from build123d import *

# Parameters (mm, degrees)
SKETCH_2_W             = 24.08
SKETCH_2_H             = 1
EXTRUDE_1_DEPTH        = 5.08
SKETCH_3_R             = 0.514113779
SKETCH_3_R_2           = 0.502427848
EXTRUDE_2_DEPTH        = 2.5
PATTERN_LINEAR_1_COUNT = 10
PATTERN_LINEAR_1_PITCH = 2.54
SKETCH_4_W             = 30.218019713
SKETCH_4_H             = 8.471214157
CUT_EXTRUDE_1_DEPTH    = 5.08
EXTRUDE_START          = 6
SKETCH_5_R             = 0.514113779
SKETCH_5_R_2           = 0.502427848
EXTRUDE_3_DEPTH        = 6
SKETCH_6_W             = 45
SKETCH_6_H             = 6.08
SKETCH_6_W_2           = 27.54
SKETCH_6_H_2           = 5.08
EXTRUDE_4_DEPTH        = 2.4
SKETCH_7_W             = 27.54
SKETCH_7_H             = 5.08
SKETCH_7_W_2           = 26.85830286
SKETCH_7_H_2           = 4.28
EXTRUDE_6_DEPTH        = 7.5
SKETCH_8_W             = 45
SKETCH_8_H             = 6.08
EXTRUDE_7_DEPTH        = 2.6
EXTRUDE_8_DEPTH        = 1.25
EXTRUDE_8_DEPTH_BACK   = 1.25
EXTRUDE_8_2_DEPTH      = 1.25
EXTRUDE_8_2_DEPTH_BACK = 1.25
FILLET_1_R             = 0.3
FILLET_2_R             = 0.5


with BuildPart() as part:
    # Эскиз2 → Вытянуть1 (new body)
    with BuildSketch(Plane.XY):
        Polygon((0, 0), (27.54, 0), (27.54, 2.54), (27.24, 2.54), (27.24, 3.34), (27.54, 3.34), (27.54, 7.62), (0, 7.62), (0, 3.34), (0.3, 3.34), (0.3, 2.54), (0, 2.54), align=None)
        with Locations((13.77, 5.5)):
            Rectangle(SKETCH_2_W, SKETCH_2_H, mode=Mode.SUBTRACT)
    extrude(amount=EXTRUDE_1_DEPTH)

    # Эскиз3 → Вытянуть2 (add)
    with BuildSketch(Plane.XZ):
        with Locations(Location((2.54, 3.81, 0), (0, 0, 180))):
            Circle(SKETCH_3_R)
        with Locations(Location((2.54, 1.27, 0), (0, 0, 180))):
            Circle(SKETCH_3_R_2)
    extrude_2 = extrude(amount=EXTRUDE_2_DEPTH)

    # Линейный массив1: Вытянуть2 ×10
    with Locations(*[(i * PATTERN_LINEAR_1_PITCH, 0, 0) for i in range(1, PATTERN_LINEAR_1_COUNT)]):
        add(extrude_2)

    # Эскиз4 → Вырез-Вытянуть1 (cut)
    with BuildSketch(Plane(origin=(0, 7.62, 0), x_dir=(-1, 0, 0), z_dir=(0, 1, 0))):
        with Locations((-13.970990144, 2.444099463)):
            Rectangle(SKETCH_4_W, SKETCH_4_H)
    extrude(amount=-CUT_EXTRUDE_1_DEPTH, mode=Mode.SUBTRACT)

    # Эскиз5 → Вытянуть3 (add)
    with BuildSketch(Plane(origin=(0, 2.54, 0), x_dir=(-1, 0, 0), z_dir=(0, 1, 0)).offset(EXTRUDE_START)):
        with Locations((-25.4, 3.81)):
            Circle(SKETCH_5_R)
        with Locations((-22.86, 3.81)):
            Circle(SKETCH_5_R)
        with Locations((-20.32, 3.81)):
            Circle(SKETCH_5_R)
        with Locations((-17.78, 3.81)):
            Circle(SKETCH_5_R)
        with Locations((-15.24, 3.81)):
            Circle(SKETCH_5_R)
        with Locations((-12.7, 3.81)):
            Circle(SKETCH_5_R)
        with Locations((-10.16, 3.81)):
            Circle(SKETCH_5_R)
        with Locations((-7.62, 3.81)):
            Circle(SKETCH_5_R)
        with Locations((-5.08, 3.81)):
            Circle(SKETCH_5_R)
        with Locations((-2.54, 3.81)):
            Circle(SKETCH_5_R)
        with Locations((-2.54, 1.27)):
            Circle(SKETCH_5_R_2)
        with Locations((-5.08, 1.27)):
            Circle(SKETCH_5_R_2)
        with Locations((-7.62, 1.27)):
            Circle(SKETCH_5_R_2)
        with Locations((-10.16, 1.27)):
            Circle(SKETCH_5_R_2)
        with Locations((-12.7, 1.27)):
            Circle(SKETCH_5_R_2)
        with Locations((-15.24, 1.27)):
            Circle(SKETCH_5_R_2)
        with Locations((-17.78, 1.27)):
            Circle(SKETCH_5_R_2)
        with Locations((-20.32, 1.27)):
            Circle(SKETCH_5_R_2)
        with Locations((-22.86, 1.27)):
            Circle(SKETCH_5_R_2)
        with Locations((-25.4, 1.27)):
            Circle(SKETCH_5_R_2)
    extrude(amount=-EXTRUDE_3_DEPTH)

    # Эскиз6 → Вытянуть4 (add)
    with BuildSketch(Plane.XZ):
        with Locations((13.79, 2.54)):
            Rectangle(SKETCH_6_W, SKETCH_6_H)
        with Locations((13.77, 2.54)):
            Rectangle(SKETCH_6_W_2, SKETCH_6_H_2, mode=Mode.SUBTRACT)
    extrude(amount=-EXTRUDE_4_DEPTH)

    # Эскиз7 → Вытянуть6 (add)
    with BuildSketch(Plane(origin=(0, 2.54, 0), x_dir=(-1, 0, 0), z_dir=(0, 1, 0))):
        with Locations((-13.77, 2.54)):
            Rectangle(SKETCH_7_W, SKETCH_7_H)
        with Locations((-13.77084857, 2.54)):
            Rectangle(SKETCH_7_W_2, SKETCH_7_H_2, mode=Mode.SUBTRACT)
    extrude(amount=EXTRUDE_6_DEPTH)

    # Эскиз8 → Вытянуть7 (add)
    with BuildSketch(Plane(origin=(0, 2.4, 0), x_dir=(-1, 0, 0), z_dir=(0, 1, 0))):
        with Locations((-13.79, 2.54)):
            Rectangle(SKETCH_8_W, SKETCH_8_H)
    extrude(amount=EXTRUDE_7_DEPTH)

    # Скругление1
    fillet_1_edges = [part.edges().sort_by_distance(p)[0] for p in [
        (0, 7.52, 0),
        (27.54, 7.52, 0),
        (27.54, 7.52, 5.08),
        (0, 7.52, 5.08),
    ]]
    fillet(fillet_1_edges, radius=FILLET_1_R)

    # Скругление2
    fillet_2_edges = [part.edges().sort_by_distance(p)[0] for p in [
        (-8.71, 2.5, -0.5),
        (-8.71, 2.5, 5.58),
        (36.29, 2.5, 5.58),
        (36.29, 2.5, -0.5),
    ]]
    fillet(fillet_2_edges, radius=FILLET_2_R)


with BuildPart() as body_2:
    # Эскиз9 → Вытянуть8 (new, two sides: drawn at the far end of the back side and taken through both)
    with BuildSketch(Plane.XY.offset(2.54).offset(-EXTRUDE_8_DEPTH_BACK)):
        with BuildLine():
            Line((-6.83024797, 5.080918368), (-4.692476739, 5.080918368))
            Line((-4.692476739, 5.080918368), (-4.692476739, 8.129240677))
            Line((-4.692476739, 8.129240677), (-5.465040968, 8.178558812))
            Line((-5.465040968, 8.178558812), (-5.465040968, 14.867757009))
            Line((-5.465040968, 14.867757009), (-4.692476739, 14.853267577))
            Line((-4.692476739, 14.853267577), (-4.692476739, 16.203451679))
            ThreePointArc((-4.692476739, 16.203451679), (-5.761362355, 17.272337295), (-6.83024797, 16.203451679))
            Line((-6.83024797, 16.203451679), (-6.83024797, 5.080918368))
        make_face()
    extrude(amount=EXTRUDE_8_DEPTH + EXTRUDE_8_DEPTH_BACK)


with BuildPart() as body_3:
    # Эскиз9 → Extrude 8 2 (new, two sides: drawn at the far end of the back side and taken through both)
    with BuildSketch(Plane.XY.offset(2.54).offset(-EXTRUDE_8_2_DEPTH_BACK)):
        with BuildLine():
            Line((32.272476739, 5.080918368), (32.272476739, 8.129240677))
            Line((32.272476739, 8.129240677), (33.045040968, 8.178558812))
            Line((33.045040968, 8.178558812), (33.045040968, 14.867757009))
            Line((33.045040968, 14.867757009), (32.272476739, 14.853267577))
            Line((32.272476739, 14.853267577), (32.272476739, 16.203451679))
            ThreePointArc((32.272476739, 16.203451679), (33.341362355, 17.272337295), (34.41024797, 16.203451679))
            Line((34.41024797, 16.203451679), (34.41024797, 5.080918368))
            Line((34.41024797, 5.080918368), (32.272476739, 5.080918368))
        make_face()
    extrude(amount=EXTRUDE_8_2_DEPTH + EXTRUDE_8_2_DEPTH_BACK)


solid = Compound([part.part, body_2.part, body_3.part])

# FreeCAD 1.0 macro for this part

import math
import FreeCAD as App
import Part
import Sketcher

V = App.Vector


def edges_at(feature, points):
    """Names of the edges that pass closest to the given points."""
    edges = feature.Shape.Edges
    near = lambda p: min(range(len(edges)), key=lambda i: edges[i].distToShape(Part.Vertex(*p))[0])
    return sorted({f"Edge{near(p) + 1}" for p in points})

doc = App.newDocument("Part")
body = doc.addObject("PartDesign::Body", "Body")

# Sketch on XY plane
sketch1 = body.newObject("Sketcher::SketchObject", "Sketch")
sketch1.AttachmentSupport = (doc.getObject("XY_Plane"), [""])
sketch1.MapMode = "FlatFace"
sketch1.addGeometry(Part.LineSegment(V(0, 0, 0), V(27.54, 0, 0)), False)
sketch1.addGeometry(Part.LineSegment(V(27.54, 0, 0), V(27.54, 2.54, 0)), False)
sketch1.addGeometry(Part.LineSegment(V(27.54, 2.54, 0), V(27.24, 2.54, 0)), False)
sketch1.addGeometry(Part.LineSegment(V(27.24, 2.54, 0), V(27.24, 3.34, 0)), False)
sketch1.addGeometry(Part.LineSegment(V(27.24, 3.34, 0), V(27.54, 3.34, 0)), False)
sketch1.addGeometry(Part.LineSegment(V(27.54, 3.34, 0), V(27.54, 7.62, 0)), False)
sketch1.addGeometry(Part.LineSegment(V(27.54, 7.62, 0), V(0, 7.62, 0)), False)
sketch1.addGeometry(Part.LineSegment(V(0, 7.62, 0), V(0, 3.34, 0)), False)
sketch1.addGeometry(Part.LineSegment(V(0, 3.34, 0), V(0.3, 3.34, 0)), False)
sketch1.addGeometry(Part.LineSegment(V(0.3, 3.34, 0), V(0.3, 2.54, 0)), False)
sketch1.addGeometry(Part.LineSegment(V(0.3, 2.54, 0), V(0, 2.54, 0)), False)
sketch1.addGeometry(Part.LineSegment(V(0, 2.54, 0), V(0, 0, 0)), False)
sketch1.addGeometry(Part.LineSegment(V(25.81, 5, 0), V(1.73, 5, 0)), False)
sketch1.addGeometry(Part.LineSegment(V(1.73, 5, 0), V(1.73, 6, 0)), False)
sketch1.addGeometry(Part.LineSegment(V(1.73, 6, 0), V(25.81, 6, 0)), False)
sketch1.addGeometry(Part.LineSegment(V(25.81, 6, 0), V(25.81, 5, 0)), False)
sketch1.addConstraint(Sketcher.Constraint("Coincident", 0, 2, 1, 1))
sketch1.addConstraint(Sketcher.Constraint("Coincident", 1, 2, 2, 1))
sketch1.addConstraint(Sketcher.Constraint("Coincident", 2, 2, 3, 1))
sketch1.addConstraint(Sketcher.Constraint("Coincident", 3, 2, 4, 1))
sketch1.addConstraint(Sketcher.Constraint("Coincident", 4, 2, 5, 1))
sketch1.addConstraint(Sketcher.Constraint("Coincident", 5, 2, 6, 1))
sketch1.addConstraint(Sketcher.Constraint("Coincident", 6, 2, 7, 1))
sketch1.addConstraint(Sketcher.Constraint("Coincident", 7, 2, 8, 1))
sketch1.addConstraint(Sketcher.Constraint("Coincident", 8, 2, 9, 1))
sketch1.addConstraint(Sketcher.Constraint("Coincident", 9, 2, 10, 1))
sketch1.addConstraint(Sketcher.Constraint("Coincident", 10, 2, 11, 1))
sketch1.addConstraint(Sketcher.Constraint("Coincident", 11, 2, 0, 1))
sketch1.addConstraint(Sketcher.Constraint("Coincident", 12, 2, 13, 1))
sketch1.addConstraint(Sketcher.Constraint("Coincident", 13, 2, 14, 1))
sketch1.addConstraint(Sketcher.Constraint("Coincident", 14, 2, 15, 1))
sketch1.addConstraint(Sketcher.Constraint("Coincident", 15, 2, 12, 1))
sketch1.addConstraint(Sketcher.Constraint("Horizontal", 0))
sketch1.addConstraint(Sketcher.Constraint("Vertical", 1))
sketch1.addConstraint(Sketcher.Constraint("Horizontal", 2))
sketch1.addConstraint(Sketcher.Constraint("Vertical", 3))
sketch1.addConstraint(Sketcher.Constraint("Horizontal", 4))
sketch1.addConstraint(Sketcher.Constraint("Vertical", 5))
sketch1.addConstraint(Sketcher.Constraint("Horizontal", 6))
sketch1.addConstraint(Sketcher.Constraint("Vertical", 7))
sketch1.addConstraint(Sketcher.Constraint("Horizontal", 8))
sketch1.addConstraint(Sketcher.Constraint("Vertical", 9))
sketch1.addConstraint(Sketcher.Constraint("Horizontal", 10))
sketch1.addConstraint(Sketcher.Constraint("Vertical", 11))
sketch1.addConstraint(Sketcher.Constraint("Horizontal", 12))
sketch1.addConstraint(Sketcher.Constraint("Vertical", 13))
sketch1.addConstraint(Sketcher.Constraint("Horizontal", 14))
sketch1.addConstraint(Sketcher.Constraint("Vertical", 15))
sketch1.addConstraint(Sketcher.Constraint("Coincident", 11, 2, -1, 1))
sketch1.addConstraint(Sketcher.Constraint("PointOnObject", 6, 2, -2))
sketch1.addConstraint(Sketcher.Constraint("Horizontal", 4, 2, 7, 2))
sketch1.addConstraint(Sketcher.Constraint("Horizontal", 2, 2, 9, 2))
sketch1.addConstraint(Sketcher.Constraint("Vertical", 1, 2, 4, 2))
sketch1.addConstraint(Sketcher.Constraint("Equal", 4, 8))
sketch1.addConstraint(Sketcher.Constraint("DistanceY", 13, 1, 13, 2, 1.0))
sketch1.addConstraint(Sketcher.Constraint("DistanceX", 2, 2, 2, 1, 0.3))
sketch1.addConstraint(Sketcher.Constraint("DistanceY", 3, 1, 3, 2, 0.8))
sketch1.addConstraint(Sketcher.Constraint("DistanceY", -1, 1, 12, 2, 5.0))
sketch1.addConstraint(Sketcher.Constraint("DistanceX", 0, 1, 0, 2, 27.54))
sketch1.addConstraint(Sketcher.Constraint("DistanceX", 12, 2, 12, 1, 24.08))
sketch1.addConstraint(Sketcher.Constraint("DistanceY", 1, 1, 1, 2, 2.54))
sketch1.addConstraint(Sketcher.Constraint("DistanceY", 5, 1, 5, 2, 4.28))
sketch1.addConstraint(Sketcher.Constraint("DistanceX", -1, 1, 12, 2, 1.73))
pad1 = body.newObject("PartDesign::Pad", "Pad")
pad1.Profile = sketch1
pad1.Length = 5.08

# Sketch on XZ plane
sketch2 = body.newObject("Sketcher::SketchObject", "Sketch001")
sketch2.AttachmentSupport = (doc.getObject("XZ_Plane"), [""])
sketch2.MapMode = "FlatFace"
sketch2.addGeometry(Part.Circle(V(2.5, 3.8, 0), V(0, 0, 1), 0.5), False)
sketch2.addGeometry(Part.Circle(V(2.5, 1.3, 0), V(0, 0, 1), 0.5), False)
sketch2.addConstraint(Sketcher.Constraint("Vertical", 0, 3, 1, 3))
sketch2.addConstraint(Sketcher.Constraint("DistanceX", -1, 1, 0, 3, 2.54))
sketch2.addConstraint(Sketcher.Constraint("DistanceY", -1, 1, 0, 3, 3.81))
sketch2.addConstraint(Sketcher.Constraint("DistanceY", -1, 1, 1, 3, 1.27))
sketch2.addConstraint(Sketcher.Constraint("Diameter", 0, 1.028228))
sketch2.addConstraint(Sketcher.Constraint("Diameter", 1, 1.004856))
pad2 = body.newObject("PartDesign::Pad", "Pad001")
pad2.Profile = sketch2
pad2.Length = 2.5
doc.recompute()

linearpattern = body.newObject("PartDesign::LinearPattern", "LinearPattern")
linearpattern.Originals = [pad2]
linearpattern.Direction = (doc.getObject("X_Axis"), [""])
linearpattern.Mode = "offset"
linearpattern.Offset = 2.54
linearpattern.Occurrences = 10
body.Tip = linearpattern

# Sketch on XZ plane
sketch3 = body.newObject("Sketcher::SketchObject", "Sketch002")
sketch3.AttachmentSupport = (doc.getObject("XZ_Plane"), [""])
sketch3.MapMode = "FlatFace"
sketch3.AttachmentOffset = App.Placement(V(0, 0, -7.62), App.Rotation())
sketch3.addGeometry(Part.LineSegment(V(29, 7, 0), V(29, -2, 0)), False)
sketch3.addGeometry(Part.LineSegment(V(29, -2, 0), V(-1, -2, 0)), False)
sketch3.addGeometry(Part.LineSegment(V(-1, -2, 0), V(-1, 7, 0)), False)
sketch3.addGeometry(Part.LineSegment(V(-1, 7, 0), V(29, 7, 0)), False)
sketch3.addConstraint(Sketcher.Constraint("Coincident", 0, 2, 1, 1))
sketch3.addConstraint(Sketcher.Constraint("Coincident", 1, 2, 2, 1))
sketch3.addConstraint(Sketcher.Constraint("Coincident", 2, 2, 3, 1))
sketch3.addConstraint(Sketcher.Constraint("Coincident", 3, 2, 0, 1))
sketch3.addConstraint(Sketcher.Constraint("Vertical", 0))
sketch3.addConstraint(Sketcher.Constraint("Horizontal", 1))
sketch3.addConstraint(Sketcher.Constraint("Vertical", 2))
sketch3.addConstraint(Sketcher.Constraint("Horizontal", 3))
sketch3.addConstraint(Sketcher.Constraint("DistanceX", -1, 1, 0, 2, 29.08))
sketch3.addConstraint(Sketcher.Constraint("DistanceX", 1, 2, 1, 1, 30.21802))
sketch3.addConstraint(Sketcher.Constraint("DistanceY", 0, 2, 0, 1, 8.471214))
sketch3.addConstraint(Sketcher.Constraint("DistanceY", 0, 2, -1, 1, 1.791508))
pocket1 = body.newObject("PartDesign::Pocket", "Pocket")
pocket1.Profile = sketch3
pocket1.Length = 5.08
pocket1.Reversed = True

# Sketch on XZ plane
sketch4 = body.newObject("Sketcher::SketchObject", "Sketch003")
sketch4.AttachmentSupport = (doc.getObject("XZ_Plane"), [""])
sketch4.MapMode = "FlatFace"
sketch4.AttachmentOffset = App.Placement(V(0, 0, -8.54), App.Rotation())
sketch4.addGeometry(Part.Circle(V(25.4, 3.8, 0), V(0, 0, 1), 0.5), False)
sketch4.addGeometry(Part.Circle(V(22.9, 3.8, 0), V(0, 0, 1), 0.5), False)
sketch4.addGeometry(Part.Circle(V(20.3, 3.8, 0), V(0, 0, 1), 0.5), False)
sketch4.addGeometry(Part.Circle(V(17.8, 3.8, 0), V(0, 0, 1), 0.5), False)
sketch4.addGeometry(Part.Circle(V(15.2, 3.8, 0), V(0, 0, 1), 0.5), False)
sketch4.addGeometry(Part.Circle(V(12.7, 3.8, 0), V(0, 0, 1), 0.5), False)
sketch4.addGeometry(Part.Circle(V(10.2, 3.8, 0), V(0, 0, 1), 0.5), False)
sketch4.addGeometry(Part.Circle(V(7.6, 3.8, 0), V(0, 0, 1), 0.5), False)
sketch4.addGeometry(Part.Circle(V(5.1, 3.8, 0), V(0, 0, 1), 0.5), False)
sketch4.addGeometry(Part.Circle(V(2.5, 3.8, 0), V(0, 0, 1), 0.5), False)
sketch4.addGeometry(Part.Circle(V(2.5, 1.3, 0), V(0, 0, 1), 0.5), False)
sketch4.addGeometry(Part.Circle(V(5.1, 1.3, 0), V(0, 0, 1), 0.5), False)
sketch4.addGeometry(Part.Circle(V(7.6, 1.3, 0), V(0, 0, 1), 0.5), False)
sketch4.addGeometry(Part.Circle(V(10.2, 1.3, 0), V(0, 0, 1), 0.5), False)
sketch4.addGeometry(Part.Circle(V(12.7, 1.3, 0), V(0, 0, 1), 0.5), False)
sketch4.addGeometry(Part.Circle(V(15.2, 1.3, 0), V(0, 0, 1), 0.5), False)
sketch4.addGeometry(Part.Circle(V(17.8, 1.3, 0), V(0, 0, 1), 0.5), False)
sketch4.addGeometry(Part.Circle(V(20.3, 1.3, 0), V(0, 0, 1), 0.5), False)
sketch4.addGeometry(Part.Circle(V(22.9, 1.3, 0), V(0, 0, 1), 0.5), False)
sketch4.addGeometry(Part.Circle(V(25.4, 1.3, 0), V(0, 0, 1), 0.5), False)
sketch4.addConstraint(Sketcher.Constraint("Equal", 0, 1))
sketch4.addConstraint(Sketcher.Constraint("Equal", 1, 2))
sketch4.addConstraint(Sketcher.Constraint("Equal", 2, 3))
sketch4.addConstraint(Sketcher.Constraint("Equal", 3, 4))
sketch4.addConstraint(Sketcher.Constraint("Equal", 4, 5))
sketch4.addConstraint(Sketcher.Constraint("Equal", 5, 6))
sketch4.addConstraint(Sketcher.Constraint("Equal", 6, 7))
sketch4.addConstraint(Sketcher.Constraint("Equal", 7, 8))
sketch4.addConstraint(Sketcher.Constraint("Equal", 8, 9))
sketch4.addConstraint(Sketcher.Constraint("Equal", 10, 11))
sketch4.addConstraint(Sketcher.Constraint("Equal", 11, 12))
sketch4.addConstraint(Sketcher.Constraint("Equal", 12, 13))
sketch4.addConstraint(Sketcher.Constraint("Equal", 13, 14))
sketch4.addConstraint(Sketcher.Constraint("Equal", 14, 15))
sketch4.addConstraint(Sketcher.Constraint("Equal", 15, 16))
sketch4.addConstraint(Sketcher.Constraint("Equal", 16, 17))
sketch4.addConstraint(Sketcher.Constraint("Equal", 17, 18))
sketch4.addConstraint(Sketcher.Constraint("Equal", 18, 19))
sketch4.addConstraint(Sketcher.Constraint("Horizontal", 0, 3, 1, 3))
sketch4.addConstraint(Sketcher.Constraint("Horizontal", 1, 3, 2, 3))
sketch4.addConstraint(Sketcher.Constraint("Horizontal", 2, 3, 3, 3))
sketch4.addConstraint(Sketcher.Constraint("Horizontal", 3, 3, 4, 3))
sketch4.addConstraint(Sketcher.Constraint("Horizontal", 4, 3, 5, 3))
sketch4.addConstraint(Sketcher.Constraint("Horizontal", 5, 3, 6, 3))
sketch4.addConstraint(Sketcher.Constraint("Horizontal", 6, 3, 7, 3))
sketch4.addConstraint(Sketcher.Constraint("Horizontal", 7, 3, 8, 3))
sketch4.addConstraint(Sketcher.Constraint("Horizontal", 8, 3, 9, 3))
sketch4.addConstraint(Sketcher.Constraint("Horizontal", 10, 3, 11, 3))
sketch4.addConstraint(Sketcher.Constraint("Horizontal", 11, 3, 12, 3))
sketch4.addConstraint(Sketcher.Constraint("Horizontal", 12, 3, 13, 3))
sketch4.addConstraint(Sketcher.Constraint("Horizontal", 13, 3, 14, 3))
sketch4.addConstraint(Sketcher.Constraint("Horizontal", 14, 3, 15, 3))
sketch4.addConstraint(Sketcher.Constraint("Horizontal", 15, 3, 16, 3))
sketch4.addConstraint(Sketcher.Constraint("Horizontal", 16, 3, 17, 3))
sketch4.addConstraint(Sketcher.Constraint("Horizontal", 17, 3, 18, 3))
sketch4.addConstraint(Sketcher.Constraint("Horizontal", 18, 3, 19, 3))
sketch4.addConstraint(Sketcher.Constraint("Vertical", 9, 3, 10, 3))
sketch4.addConstraint(Sketcher.Constraint("Vertical", 8, 3, 11, 3))
sketch4.addConstraint(Sketcher.Constraint("Vertical", 7, 3, 12, 3))
sketch4.addConstraint(Sketcher.Constraint("Vertical", 6, 3, 13, 3))
sketch4.addConstraint(Sketcher.Constraint("Vertical", 5, 3, 14, 3))
sketch4.addConstraint(Sketcher.Constraint("Vertical", 4, 3, 15, 3))
sketch4.addConstraint(Sketcher.Constraint("Vertical", 3, 3, 16, 3))
sketch4.addConstraint(Sketcher.Constraint("Vertical", 2, 3, 17, 3))
sketch4.addConstraint(Sketcher.Constraint("Vertical", 1, 3, 18, 3))
sketch4.addConstraint(Sketcher.Constraint("Vertical", 0, 3, 19, 3))
sketch4.addConstraint(Sketcher.Constraint("DistanceX", -1, 1, 0, 3, 25.4))
sketch4.addConstraint(Sketcher.Constraint("DistanceX", -1, 1, 5, 3, 12.7))
sketch4.addConstraint(Sketcher.Constraint("DistanceX", 6, 3, 1, 3, 12.7))
sketch4.addConstraint(Sketcher.Constraint("DistanceX", 7, 3, 2, 3, 12.7))
sketch4.addConstraint(Sketcher.Constraint("DistanceX", 8, 3, 3, 3, 12.7))
sketch4.addConstraint(Sketcher.Constraint("DistanceX", 9, 3, 4, 3, 12.7))
sketch4.addConstraint(Sketcher.Constraint("DistanceY", -1, 1, 0, 3, 3.81))
sketch4.addConstraint(Sketcher.Constraint("DistanceX", -1, 1, 1, 3, 22.86))
sketch4.addConstraint(Sketcher.Constraint("DistanceX", -1, 1, 2, 3, 20.32))
sketch4.addConstraint(Sketcher.Constraint("DistanceX", -1, 1, 3, 3, 17.78))
sketch4.addConstraint(Sketcher.Constraint("DistanceX", -1, 1, 4, 3, 15.24))
sketch4.addConstraint(Sketcher.Constraint("DistanceY", -1, 1, 10, 3, 1.27))
sketch4.addConstraint(Sketcher.Constraint("Diameter", 0, 1.028228))
sketch4.addConstraint(Sketcher.Constraint("Diameter", 10, 1.004856))
pad3 = body.newObject("PartDesign::Pad", "Pad002")
pad3.Profile = sketch4
pad3.Length = 6

# Sketch on XZ plane
sketch5 = body.newObject("Sketcher::SketchObject", "Sketch004")
sketch5.AttachmentSupport = (doc.getObject("XZ_Plane"), [""])
sketch5.MapMode = "FlatFace"
sketch5.addGeometry(Part.LineSegment(V(-9, 6, 0), V(-9, 0, 0)), False)
sketch5.addGeometry(Part.LineSegment(V(-9, 0, 0), V(36, 0, 0)), False)
sketch5.addGeometry(Part.LineSegment(V(36, 0, 0), V(36, 6, 0)), False)
sketch5.addGeometry(Part.LineSegment(V(36, 6, 0), V(-9, 6, 0)), False)
sketch5.addGeometry(Part.LineSegment(V(28, 0, 0), V(0, 0, 0)), False)
sketch5.addGeometry(Part.LineSegment(V(0, 0, 0), V(0, 5, 0)), False)
sketch5.addGeometry(Part.LineSegment(V(0, 5, 0), V(28, 5, 0)), False)
sketch5.addGeometry(Part.LineSegment(V(28, 5, 0), V(28, 0, 0)), False)
sketch5.addConstraint(Sketcher.Constraint("Coincident", 0, 2, 1, 1))
sketch5.addConstraint(Sketcher.Constraint("Coincident", 1, 2, 2, 1))
sketch5.addConstraint(Sketcher.Constraint("Coincident", 2, 2, 3, 1))
sketch5.addConstraint(Sketcher.Constraint("Coincident", 3, 2, 0, 1))
sketch5.addConstraint(Sketcher.Constraint("Coincident", 4, 2, 5, 1))
sketch5.addConstraint(Sketcher.Constraint("Coincident", 5, 2, 6, 1))
sketch5.addConstraint(Sketcher.Constraint("Coincident", 6, 2, 7, 1))
sketch5.addConstraint(Sketcher.Constraint("Coincident", 7, 2, 4, 1))
sketch5.addConstraint(Sketcher.Constraint("Vertical", 0))
sketch5.addConstraint(Sketcher.Constraint("Horizontal", 1))
sketch5.addConstraint(Sketcher.Constraint("Vertical", 2))
sketch5.addConstraint(Sketcher.Constraint("Horizontal", 3))
sketch5.addConstraint(Sketcher.Constraint("Horizontal", 4))
sketch5.addConstraint(Sketcher.Constraint("Vertical", 5))
sketch5.addConstraint(Sketcher.Constraint("Horizontal", 6))
sketch5.addConstraint(Sketcher.Constraint("Vertical", 7))
sketch5.addConstraint(Sketcher.Constraint("Coincident", 4, 2, -1, 1))
sketch5.addConstraint(Sketcher.Constraint("DistanceX", 1, 1, 1, 2, 45.0))
sketch5.addConstraint(Sketcher.Constraint("DistanceX", 4, 2, 4, 1, 27.54))
sketch5.addConstraint(Sketcher.Constraint("DistanceY", 0, 2, 0, 1, 6.08))
sketch5.addConstraint(Sketcher.Constraint("DistanceY", 5, 1, 5, 2, 5.08))
sketch5.addConstraint(Sketcher.Constraint("DistanceY", 0, 2, -1, 1, 0.5))
sketch5.addConstraint(Sketcher.Constraint("DistanceX", 0, 2, -1, 1, 8.71))
pad4 = body.newObject("PartDesign::Pad", "Pad003")
pad4.Profile = sketch5
pad4.Length = 2.4
pad4.Reversed = True

# Sketch on XZ plane
sketch6 = body.newObject("Sketcher::SketchObject", "Sketch005")
sketch6.AttachmentSupport = (doc.getObject("XZ_Plane"), [""])
sketch6.MapMode = "FlatFace"
sketch6.AttachmentOffset = App.Placement(V(0, 0, -2.54), App.Rotation())
sketch6.addGeometry(Part.LineSegment(V(27.5, 5.1, 0), V(27.5, 0, 0)), False)
sketch6.addGeometry(Part.LineSegment(V(27.5, 0, 0), V(0, 0, 0)), False)
sketch6.addGeometry(Part.LineSegment(V(0, 0, 0), V(0, 5.1, 0)), False)
sketch6.addGeometry(Part.LineSegment(V(0, 5.1, 0), V(27.5, 5.1, 0)), False)
sketch6.addGeometry(Part.LineSegment(V(0.3, 0.4, 0), V(27.2, 0.4, 0)), False)
sketch6.addGeometry(Part.LineSegment(V(27.2, 0.4, 0), V(27.2, 4.7, 0)), False)
sketch6.addGeometry(Part.LineSegment(V(27.2, 4.7, 0), V(0.3, 4.7, 0)), False)
sketch6.addGeometry(Part.LineSegment(V(0.3, 4.7, 0), V(0.3, 0.4, 0)), False)
sketch6.addConstraint(Sketcher.Constraint("Coincident", 0, 2, 1, 1))
sketch6.addConstraint(Sketcher.Constraint("Coincident", 1, 2, 2, 1))
sketch6.addConstraint(Sketcher.Constraint("Coincident", 2, 2, 3, 1))
sketch6.addConstraint(Sketcher.Constraint("Coincident", 3, 2, 0, 1))
sketch6.addConstraint(Sketcher.Constraint("Coincident", 4, 2, 5, 1))
sketch6.addConstraint(Sketcher.Constraint("Coincident", 5, 2, 6, 1))
sketch6.addConstraint(Sketcher.Constraint("Coincident", 6, 2, 7, 1))
sketch6.addConstraint(Sketcher.Constraint("Coincident", 7, 2, 4, 1))
sketch6.addConstraint(Sketcher.Constraint("Vertical", 0))
sketch6.addConstraint(Sketcher.Constraint("Horizontal", 1))
sketch6.addConstraint(Sketcher.Constraint("Vertical", 2))
sketch6.addConstraint(Sketcher.Constraint("Horizontal", 3))
sketch6.addConstraint(Sketcher.Constraint("Horizontal", 4))
sketch6.addConstraint(Sketcher.Constraint("Vertical", 5))
sketch6.addConstraint(Sketcher.Constraint("Horizontal", 6))
sketch6.addConstraint(Sketcher.Constraint("Vertical", 7))
sketch6.addConstraint(Sketcher.Constraint("Coincident", 1, 2, -1, 1))
sketch6.addConstraint(Sketcher.Constraint("DistanceX", 1, 2, 1, 1, 27.54))
sketch6.addConstraint(Sketcher.Constraint("DistanceY", 0, 2, 0, 1, 5.08))
sketch6.addConstraint(Sketcher.Constraint("DistanceY", 5, 1, 5, 2, 4.28))
sketch6.addConstraint(Sketcher.Constraint("DistanceX", -1, 1, 4, 2, 27.2))
sketch6.addConstraint(Sketcher.Constraint("DistanceY", -1, 1, 4, 2, 0.4))
sketch6.addConstraint(Sketcher.Constraint("DistanceX", 4, 1, 4, 2, 26.858303))
pad5 = body.newObject("PartDesign::Pad", "Pad004")
pad5.Profile = sketch6
pad5.Length = 7.5
pad5.Reversed = True

# Sketch on XZ plane
sketch7 = body.newObject("Sketcher::SketchObject", "Sketch006")
sketch7.AttachmentSupport = (doc.getObject("XZ_Plane"), [""])
sketch7.MapMode = "FlatFace"
sketch7.AttachmentOffset = App.Placement(V(0, 0, -2.4), App.Rotation())
sketch7.addGeometry(Part.LineSegment(V(36, 6, 0), V(36, 0, 0)), False)
sketch7.addGeometry(Part.LineSegment(V(36, 0, 0), V(-9, 0, 0)), False)
sketch7.addGeometry(Part.LineSegment(V(-9, 0, 0), V(-9, 6, 0)), False)
sketch7.addGeometry(Part.LineSegment(V(-9, 6, 0), V(36, 6, 0)), False)
sketch7.addConstraint(Sketcher.Constraint("Coincident", 0, 2, 1, 1))
sketch7.addConstraint(Sketcher.Constraint("Coincident", 1, 2, 2, 1))
sketch7.addConstraint(Sketcher.Constraint("Coincident", 2, 2, 3, 1))
sketch7.addConstraint(Sketcher.Constraint("Coincident", 3, 2, 0, 1))
sketch7.addConstraint(Sketcher.Constraint("Vertical", 0))
sketch7.addConstraint(Sketcher.Constraint("Horizontal", 1))
sketch7.addConstraint(Sketcher.Constraint("Vertical", 2))
sketch7.addConstraint(Sketcher.Constraint("Horizontal", 3))
sketch7.addConstraint(Sketcher.Constraint("DistanceX", 1, 2, 1, 1, 45.0))
sketch7.addConstraint(Sketcher.Constraint("DistanceY", 0, 2, 0, 1, 6.08))
sketch7.addConstraint(Sketcher.Constraint("DistanceY", 0, 2, -1, 1, 0.5))
sketch7.addConstraint(Sketcher.Constraint("DistanceX", -1, 1, 0, 2, 36.29))
pad6 = body.newObject("PartDesign::Pad", "Pad005")
pad6.Profile = sketch7
pad6.Length = 2.6
pad6.Reversed = True
doc.recompute()

fillet = body.newObject("PartDesign::Fillet", "Fillet")
fillet.Base = (pad6, edges_at(pad6, [
    (0, 7.52, 0),
    (27.54, 7.52, 0),
    (27.54, 7.52, 5.08),
    (0, 7.52, 5.08),
]))
fillet.Radius = 0.3
doc.recompute()

fillet2 = body.newObject("PartDesign::Fillet", "Fillet001")
fillet2.Base = (fillet, edges_at(fillet, [
    (-8.71, 2.5, -0.5),
    (-8.71, 2.5, 5.58),
    (36.29, 2.5, 5.58),
    (36.29, 2.5, -0.5),
]))
fillet2.Radius = 0.5
body2 = doc.addObject("PartDesign::Body", "Body001")

# Sketch on XY plane
sketch8 = body2.newObject("Sketcher::SketchObject", "Sketch007")
sketch8.AttachmentSupport = (doc.getObject("XY_Plane001"), [""])
sketch8.MapMode = "FlatFace"
sketch8.AttachmentOffset = App.Placement(V(0, 0, 2.54), App.Rotation())
sketch8.addGeometry(Part.LineSegment(V(-6.8, 5.1, 0), V(-4.7, 5.1, 0)), False)
sketch8.addGeometry(Part.LineSegment(V(-4.7, 5.1, 0), V(-4.7, 8.1, 0)), False)
sketch8.addGeometry(Part.LineSegment(V(-4.7, 8.1, 0), V(-5.5, 8.2, 0)), False)
sketch8.addGeometry(Part.LineSegment(V(-5.5, 8.2, 0), V(-5.5, 14.9, 0)), False)
sketch8.addGeometry(Part.LineSegment(V(-5.5, 14.9, 0), V(-4.7, 14.9, 0)), False)
sketch8.addGeometry(Part.LineSegment(V(-4.7, 14.9, 0), V(-4.7, 16.2, 0)), False)
sketch8.addGeometry(Part.ArcOfCircle(Part.Circle(V(-5.8, 16.2, 0), V(0, 0, 1), 1.1), math.radians(0), math.radians(180)), False)
sketch8.addGeometry(Part.LineSegment(V(-6.8, 16.2, 0), V(-6.8, 5.1, 0)), False)
sketch8.addConstraint(Sketcher.Constraint("Coincident", 0, 2, 1, 1))
sketch8.addConstraint(Sketcher.Constraint("Coincident", 1, 2, 2, 1))
sketch8.addConstraint(Sketcher.Constraint("Coincident", 2, 2, 3, 1))
sketch8.addConstraint(Sketcher.Constraint("Coincident", 3, 2, 4, 1))
sketch8.addConstraint(Sketcher.Constraint("Coincident", 4, 2, 5, 1))
sketch8.addConstraint(Sketcher.Constraint("Tangent", 5, 2, 6, 1))
sketch8.addConstraint(Sketcher.Constraint("Tangent", 6, 2, 7, 1))
sketch8.addConstraint(Sketcher.Constraint("Coincident", 7, 2, 0, 1))
sketch8.addConstraint(Sketcher.Constraint("Horizontal", 0))
sketch8.addConstraint(Sketcher.Constraint("Vertical", 1))
sketch8.addConstraint(Sketcher.Constraint("Vertical", 3))
sketch8.addConstraint(Sketcher.Constraint("Vertical", 5))
sketch8.addConstraint(Sketcher.Constraint("Vertical", 7))
sketch8.addConstraint(Sketcher.Constraint("Vertical", 1, 2, 4, 2))
sketch8.addConstraint(Sketcher.Constraint("DistanceY", 3, 1, 3, 2, 6.689198))
sketch8.addConstraint(Sketcher.Constraint("Radius", 6, 1.068886))
sketch8.addConstraint(Sketcher.Constraint("Distance", 4, 0.7727))
sketch8.addConstraint(Sketcher.Constraint("DistanceY", 1, 1, 1, 2, 3.048322))
sketch8.addConstraint(Sketcher.Constraint("DistanceY", 5, 1, 5, 2, 1.350184))
sketch8.addConstraint(Sketcher.Constraint("DistanceY", 7, 2, 7, 1, 11.122533))
sketch8.addConstraint(Sketcher.Constraint("DistanceY", -1, 1, 6, 3, 16.203452))
sketch8.addConstraint(Sketcher.Constraint("DistanceX", 2, 2, -1, 1, 5.465041))
sketch8.addConstraint(Sketcher.Constraint("DistanceY", -1, 1, 2, 2, 8.178559))
pad7 = body2.newObject("PartDesign::Pad", "Pad006")
pad7.Profile = sketch8
pad7.Type = "TwoLengths"
pad7.Length = 1.25
pad7.Length2 = 1.25
body3 = doc.addObject("PartDesign::Body", "Body002")

# Sketch on XY plane
sketch9 = body3.newObject("Sketcher::SketchObject", "Sketch008")
sketch9.AttachmentSupport = (doc.getObject("XY_Plane002"), [""])
sketch9.MapMode = "FlatFace"
sketch9.AttachmentOffset = App.Placement(V(0, 0, 2.54), App.Rotation())
sketch9.addGeometry(Part.LineSegment(V(32.3, 8.1, 0), V(32.3, 5.1, 0)), False)
sketch9.addGeometry(Part.LineSegment(V(32.3, 5.1, 0), V(34.4, 5.1, 0)), False)
sketch9.addGeometry(Part.LineSegment(V(34.4, 5.1, 0), V(34.4, 16.2, 0)), False)
sketch9.addGeometry(Part.ArcOfCircle(Part.Circle(V(33.3, 16.2, 0), V(0, 0, 1), 1.1), math.radians(0), math.radians(180)), False)
sketch9.addGeometry(Part.LineSegment(V(32.3, 16.2, 0), V(32.3, 14.9, 0)), False)
sketch9.addGeometry(Part.LineSegment(V(32.3, 14.9, 0), V(33, 14.9, 0)), False)
sketch9.addGeometry(Part.LineSegment(V(33, 14.9, 0), V(33, 8.2, 0)), False)
sketch9.addGeometry(Part.LineSegment(V(33, 8.2, 0), V(32.3, 8.1, 0)), False)
sketch9.addConstraint(Sketcher.Constraint("Coincident", 0, 2, 1, 1))
sketch9.addConstraint(Sketcher.Constraint("Coincident", 1, 2, 2, 1))
sketch9.addConstraint(Sketcher.Constraint("Tangent", 2, 2, 3, 1))
sketch9.addConstraint(Sketcher.Constraint("Tangent", 3, 2, 4, 1))
sketch9.addConstraint(Sketcher.Constraint("Coincident", 4, 2, 5, 1))
sketch9.addConstraint(Sketcher.Constraint("Coincident", 5, 2, 6, 1))
sketch9.addConstraint(Sketcher.Constraint("Coincident", 6, 2, 7, 1))
sketch9.addConstraint(Sketcher.Constraint("Coincident", 7, 2, 0, 1))
sketch9.addConstraint(Sketcher.Constraint("Vertical", 0))
sketch9.addConstraint(Sketcher.Constraint("Horizontal", 1))
sketch9.addConstraint(Sketcher.Constraint("Vertical", 2))
sketch9.addConstraint(Sketcher.Constraint("Vertical", 4))
sketch9.addConstraint(Sketcher.Constraint("Vertical", 6))
sketch9.addConstraint(Sketcher.Constraint("Vertical", 0, 2, 3, 2))
sketch9.addConstraint(Sketcher.Constraint("DistanceY", 6, 2, 6, 1, 6.689198))
sketch9.addConstraint(Sketcher.Constraint("Radius", 3, 1.068886))
sketch9.addConstraint(Sketcher.Constraint("Distance", 5, 0.7727))
sketch9.addConstraint(Sketcher.Constraint("DistanceY", 0, 2, 0, 1, 3.048322))
sketch9.addConstraint(Sketcher.Constraint("DistanceY", 2, 1, 2, 2, 11.122533))
sketch9.addConstraint(Sketcher.Constraint("DistanceY", 4, 2, 4, 1, 1.350184))
sketch9.addConstraint(Sketcher.Constraint("DistanceY", -1, 1, 3, 3, 16.203452))
sketch9.addConstraint(Sketcher.Constraint("DistanceX", -1, 1, 5, 2, 33.045041))
sketch9.addConstraint(Sketcher.Constraint("DistanceY", -1, 1, 6, 2, 8.178559))
pad8 = body3.newObject("PartDesign::Pad", "Pad007")
pad8.Profile = sketch9
pad8.Type = "TwoLengths"
pad8.Length = 1.25
pad8.Length2 = 1.25

doc.recompute()
